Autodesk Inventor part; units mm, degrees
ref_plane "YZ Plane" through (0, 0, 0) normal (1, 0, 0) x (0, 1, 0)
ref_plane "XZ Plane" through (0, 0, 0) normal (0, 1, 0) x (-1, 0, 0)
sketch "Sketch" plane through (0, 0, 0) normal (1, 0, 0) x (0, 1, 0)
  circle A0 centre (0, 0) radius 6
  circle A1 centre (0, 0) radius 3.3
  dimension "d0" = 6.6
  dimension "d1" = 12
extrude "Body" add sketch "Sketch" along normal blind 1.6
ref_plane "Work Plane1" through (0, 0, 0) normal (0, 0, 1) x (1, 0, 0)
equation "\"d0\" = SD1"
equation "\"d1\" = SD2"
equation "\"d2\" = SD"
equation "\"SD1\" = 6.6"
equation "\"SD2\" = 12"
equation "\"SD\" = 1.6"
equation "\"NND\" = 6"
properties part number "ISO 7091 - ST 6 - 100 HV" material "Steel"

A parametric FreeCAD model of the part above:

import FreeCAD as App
import Part
import Sketcher

V = App.Vector
Q = App.Units.Quantity

doc = App.newDocument("Part")
body = doc.addObject("PartDesign::Body", "Body")

sketch1 = body.newObject("Sketcher::SketchObject", "Sketch")
sketch1.AttachmentSupport = (doc.getObject("YZ_Plane"), [""])
sketch1.MapMode = "FlatFace"
sketch1.addGeometry(Part.Circle(V(0, 0, 0), V(0, 0, 1), 6), False)
sketch1.addGeometry(Part.Circle(V(0, 0, 0), V(0, 0, 1), 3.3), False)
sketch1.addConstraint(Sketcher.Constraint("Coincident", 0, 3, -1, 1))
sketch1.addConstraint(Sketcher.Constraint("Coincident", 1, 3, -1, 1))
sketch1.addConstraint(Sketcher.Constraint("Diameter", 0, Q("12 mm")))
sketch1.addConstraint(Sketcher.Constraint("Diameter", 1, Q("6.6 mm")))
pad1 = body.newObject("PartDesign::Pad", "Pad")
pad1.Profile = sketch1
pad1.Length = 1.6

doc.recompute()
